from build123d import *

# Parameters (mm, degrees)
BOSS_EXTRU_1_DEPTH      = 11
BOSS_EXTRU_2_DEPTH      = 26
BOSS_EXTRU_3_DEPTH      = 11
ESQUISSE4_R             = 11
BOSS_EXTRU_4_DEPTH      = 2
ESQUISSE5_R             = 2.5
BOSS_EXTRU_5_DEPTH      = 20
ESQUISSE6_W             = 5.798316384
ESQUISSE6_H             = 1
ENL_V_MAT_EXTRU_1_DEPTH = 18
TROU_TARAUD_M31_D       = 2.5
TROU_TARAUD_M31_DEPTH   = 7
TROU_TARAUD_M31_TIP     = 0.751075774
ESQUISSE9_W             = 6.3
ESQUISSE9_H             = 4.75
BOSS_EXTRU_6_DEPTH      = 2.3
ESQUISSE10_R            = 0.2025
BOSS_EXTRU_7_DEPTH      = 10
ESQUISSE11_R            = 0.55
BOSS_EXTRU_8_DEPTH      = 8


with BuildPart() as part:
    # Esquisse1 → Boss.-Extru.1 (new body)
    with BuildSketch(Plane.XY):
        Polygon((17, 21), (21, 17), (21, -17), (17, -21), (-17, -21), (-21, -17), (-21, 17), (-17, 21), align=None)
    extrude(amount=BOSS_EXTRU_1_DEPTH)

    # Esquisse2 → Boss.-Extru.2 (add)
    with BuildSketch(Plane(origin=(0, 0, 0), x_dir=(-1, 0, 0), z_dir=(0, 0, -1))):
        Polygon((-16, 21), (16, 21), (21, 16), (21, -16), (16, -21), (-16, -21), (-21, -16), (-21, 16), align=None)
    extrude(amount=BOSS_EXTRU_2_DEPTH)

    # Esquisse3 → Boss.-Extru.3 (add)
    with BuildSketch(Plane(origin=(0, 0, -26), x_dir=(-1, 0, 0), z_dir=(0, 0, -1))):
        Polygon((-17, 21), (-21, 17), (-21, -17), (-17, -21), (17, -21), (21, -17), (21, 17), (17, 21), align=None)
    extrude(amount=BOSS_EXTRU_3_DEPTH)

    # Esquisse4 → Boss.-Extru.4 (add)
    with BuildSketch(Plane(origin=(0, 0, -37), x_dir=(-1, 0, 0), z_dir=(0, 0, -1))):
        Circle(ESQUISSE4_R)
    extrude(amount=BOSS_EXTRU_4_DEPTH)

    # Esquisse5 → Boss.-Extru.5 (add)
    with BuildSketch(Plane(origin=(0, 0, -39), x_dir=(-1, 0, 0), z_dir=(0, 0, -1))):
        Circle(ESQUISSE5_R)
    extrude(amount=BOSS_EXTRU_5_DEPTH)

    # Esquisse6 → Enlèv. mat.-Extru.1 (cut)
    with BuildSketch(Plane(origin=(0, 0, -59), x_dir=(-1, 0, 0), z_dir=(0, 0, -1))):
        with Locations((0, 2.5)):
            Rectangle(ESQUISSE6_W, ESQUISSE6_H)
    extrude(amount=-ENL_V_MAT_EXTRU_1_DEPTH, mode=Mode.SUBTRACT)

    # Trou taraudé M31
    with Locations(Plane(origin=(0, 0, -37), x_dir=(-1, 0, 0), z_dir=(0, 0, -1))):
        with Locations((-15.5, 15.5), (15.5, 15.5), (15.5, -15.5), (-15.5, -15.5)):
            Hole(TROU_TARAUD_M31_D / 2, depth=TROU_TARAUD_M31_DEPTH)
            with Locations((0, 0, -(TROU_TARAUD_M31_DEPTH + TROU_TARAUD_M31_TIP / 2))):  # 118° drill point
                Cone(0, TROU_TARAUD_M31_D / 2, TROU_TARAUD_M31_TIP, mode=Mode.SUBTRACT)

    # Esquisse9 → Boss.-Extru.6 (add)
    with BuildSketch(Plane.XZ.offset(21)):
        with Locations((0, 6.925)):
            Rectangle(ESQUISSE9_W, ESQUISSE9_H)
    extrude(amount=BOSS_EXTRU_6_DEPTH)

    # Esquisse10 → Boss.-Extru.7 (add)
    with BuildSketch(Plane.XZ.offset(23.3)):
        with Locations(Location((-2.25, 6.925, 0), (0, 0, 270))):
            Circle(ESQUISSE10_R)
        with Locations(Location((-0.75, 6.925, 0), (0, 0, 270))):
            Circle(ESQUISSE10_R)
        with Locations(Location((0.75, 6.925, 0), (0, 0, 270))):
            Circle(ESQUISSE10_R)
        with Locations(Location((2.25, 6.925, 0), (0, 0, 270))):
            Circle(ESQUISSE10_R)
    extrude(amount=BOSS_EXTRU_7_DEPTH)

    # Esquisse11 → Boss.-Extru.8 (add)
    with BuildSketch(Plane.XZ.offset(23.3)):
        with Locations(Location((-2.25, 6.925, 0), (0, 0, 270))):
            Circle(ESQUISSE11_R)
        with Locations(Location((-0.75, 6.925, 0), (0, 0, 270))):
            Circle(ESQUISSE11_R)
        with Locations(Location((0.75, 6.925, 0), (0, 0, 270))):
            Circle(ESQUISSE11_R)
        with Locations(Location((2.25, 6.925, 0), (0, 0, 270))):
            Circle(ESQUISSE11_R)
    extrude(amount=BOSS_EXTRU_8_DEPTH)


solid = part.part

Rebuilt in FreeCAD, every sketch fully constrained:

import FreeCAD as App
import Part
import Sketcher
from FreeCAD import Vector

doc = App.newDocument("Part")
body = doc.addObject("PartDesign::Body", "Body")

sketch1 = body.newObject("Sketcher::SketchObject", "Sketch")
sketch1.AttachmentSupport = (doc.getObject("XY_Plane"), [""])
sketch1.MapMode = "FlatFace"
sketch1.addGeometry(Part.LineSegment(Vector(21, 17, 0), Vector(17, 21, 0)), False)
sketch1.addGeometry(Part.LineSegment(Vector(17, 21, 0), Vector(-17, 21, 0)), False)
sketch1.addGeometry(Part.LineSegment(Vector(-17, 21, 0), Vector(-21, 17, 0)), False)
sketch1.addGeometry(Part.LineSegment(Vector(-21, 17, 0), Vector(-21, -17, 0)), False)
sketch1.addGeometry(Part.LineSegment(Vector(-21, -17, 0), Vector(-17, -21, 0)), False)
sketch1.addGeometry(Part.LineSegment(Vector(-17, -21, 0), Vector(17, -21, 0)), False)
sketch1.addGeometry(Part.LineSegment(Vector(17, -21, 0), Vector(21, -17, 0)), False)
sketch1.addGeometry(Part.LineSegment(Vector(21, -17, 0), Vector(21, 17, 0)), False)
sketch1.addConstraint(Sketcher.Constraint("Coincident", 0, 2, 1, 1))
sketch1.addConstraint(Sketcher.Constraint("Coincident", 1, 2, 2, 1))
sketch1.addConstraint(Sketcher.Constraint("Coincident", 2, 2, 3, 1))
sketch1.addConstraint(Sketcher.Constraint("Coincident", 3, 2, 4, 1))
sketch1.addConstraint(Sketcher.Constraint("Coincident", 4, 2, 5, 1))
sketch1.addConstraint(Sketcher.Constraint("Coincident", 5, 2, 6, 1))
sketch1.addConstraint(Sketcher.Constraint("Coincident", 6, 2, 7, 1))
sketch1.addConstraint(Sketcher.Constraint("Coincident", 7, 2, 0, 1))
sketch1.addConstraint(Sketcher.Constraint("Horizontal", 1))
sketch1.addConstraint(Sketcher.Constraint("Vertical", 3))
sketch1.addConstraint(Sketcher.Constraint("Horizontal", 5))
sketch1.addConstraint(Sketcher.Constraint("Vertical", 7))
sketch1.addConstraint(Sketcher.Constraint("Symmetric", 0, 2, 4, 2, -1, 1))
sketch1.addConstraint(Sketcher.Constraint("Symmetric", 2, 2, 6, 2, -1, 1))
sketch1.addConstraint(Sketcher.Constraint("Perpendicular", 0, 2))
sketch1.addConstraint(Sketcher.Constraint("Perpendicular", 2, 4))
sketch1.addConstraint(Sketcher.Constraint("Perpendicular", 4, 6))
sketch1.addConstraint(Sketcher.Constraint("Horizontal", 3, 2, 6, 2))
sketch1.addConstraint(Sketcher.Constraint("Vertical", 1, 2, 4, 2))
sketch1.addConstraint(Sketcher.Constraint("Equal", 5, 3))
sketch1.addConstraint(Sketcher.Constraint("DistanceX", 1, 2, 1, 1, 34.0))
sketch1.addConstraint(Sketcher.Constraint("DistanceY", -1, 1, 0, 2, 21.0))
pad1 = body.newObject("PartDesign::Pad", "Pad")
pad1.Profile = sketch1
pad1.Length = 11

sketch2 = body.newObject("Sketcher::SketchObject", "Sketch001")
sketch2.AttachmentSupport = (doc.getObject("XY_Plane"), [""])
sketch2.MapMode = "FlatFace"
sketch2.addGeometry(Part.LineSegment(Vector(-16, 21, 0), Vector(16, 21, 0)), False)
sketch2.addGeometry(Part.LineSegment(Vector(16, 21, 0), Vector(21, 16, 0)), False)
sketch2.addGeometry(Part.LineSegment(Vector(21, 16, 0), Vector(21, -16, 0)), False)
sketch2.addGeometry(Part.LineSegment(Vector(21, -16, 0), Vector(16, -21, 0)), False)
sketch2.addGeometry(Part.LineSegment(Vector(16, -21, 0), Vector(-16, -21, 0)), False)
sketch2.addGeometry(Part.LineSegment(Vector(-16, -21, 0), Vector(-21, -16, 0)), False)
sketch2.addGeometry(Part.LineSegment(Vector(-21, -16, 0), Vector(-21, 16, 0)), False)
sketch2.addGeometry(Part.LineSegment(Vector(-21, 16, 0), Vector(-16, 21, 0)), False)
sketch2.addConstraint(Sketcher.Constraint("Coincident", 0, 2, 1, 1))
sketch2.addConstraint(Sketcher.Constraint("Coincident", 1, 2, 2, 1))
sketch2.addConstraint(Sketcher.Constraint("Coincident", 2, 2, 3, 1))
sketch2.addConstraint(Sketcher.Constraint("Coincident", 3, 2, 4, 1))
sketch2.addConstraint(Sketcher.Constraint("Coincident", 4, 2, 5, 1))
sketch2.addConstraint(Sketcher.Constraint("Coincident", 5, 2, 6, 1))
sketch2.addConstraint(Sketcher.Constraint("Coincident", 6, 2, 7, 1))
sketch2.addConstraint(Sketcher.Constraint("Coincident", 7, 2, 0, 1))
sketch2.addConstraint(Sketcher.Constraint("Horizontal", 0))
sketch2.addConstraint(Sketcher.Constraint("Vertical", 2))
sketch2.addConstraint(Sketcher.Constraint("Horizontal", 4))
sketch2.addConstraint(Sketcher.Constraint("Vertical", 6))
sketch2.addConstraint(Sketcher.Constraint("Symmetric", 0, 2, 4, 2, -1, 1))
sketch2.addConstraint(Sketcher.Constraint("Symmetric", 1, 2, 5, 2, -1, 1))
sketch2.addConstraint(Sketcher.Constraint("Perpendicular", 1, 3))
sketch2.addConstraint(Sketcher.Constraint("Perpendicular", 5, 7))
sketch2.addConstraint(Sketcher.Constraint("Horizontal", 2, 2, 5, 2))
sketch2.addConstraint(Sketcher.Constraint("Horizontal", 1, 2, 6, 2))
sketch2.addConstraint(Sketcher.Constraint("Vertical", 0, 2, 3, 2))
sketch2.addConstraint(Sketcher.Constraint("Equal", 4, 2))
sketch2.addConstraint(Sketcher.Constraint("DistanceX", 0, 1, 0, 2, 32.0))
sketch2.addConstraint(Sketcher.Constraint("DistanceY", -1, 1, 0, 2, 21.0))
pad2 = body.newObject("PartDesign::Pad", "Pad001")
pad2.Profile = sketch2
pad2.Length = 26
pad2.Reversed = True

sketch3 = body.newObject("Sketcher::SketchObject", "Sketch002")
sketch3.AttachmentSupport = (doc.getObject("XY_Plane"), [""])
sketch3.MapMode = "FlatFace"
sketch3.AttachmentOffset = App.Placement(Vector(0, 0, -26), App.Rotation())
sketch3.addGeometry(Part.LineSegment(Vector(17, 21, 0), Vector(21, 17, 0)), False)
sketch3.addGeometry(Part.LineSegment(Vector(21, 17, 0), Vector(21, -17, 0)), False)
sketch3.addGeometry(Part.LineSegment(Vector(21, -17, 0), Vector(17, -21, 0)), False)
sketch3.addGeometry(Part.LineSegment(Vector(17, -21, 0), Vector(-17, -21, 0)), False)
sketch3.addGeometry(Part.LineSegment(Vector(-17, -21, 0), Vector(-21, -17, 0)), False)
sketch3.addGeometry(Part.LineSegment(Vector(-21, -17, 0), Vector(-21, 17, 0)), False)
sketch3.addGeometry(Part.LineSegment(Vector(-21, 17, 0), Vector(-17, 21, 0)), False)
sketch3.addGeometry(Part.LineSegment(Vector(-17, 21, 0), Vector(17, 21, 0)), False)
sketch3.addConstraint(Sketcher.Constraint("Coincident", 0, 2, 1, 1))
sketch3.addConstraint(Sketcher.Constraint("Coincident", 1, 2, 2, 1))
sketch3.addConstraint(Sketcher.Constraint("Coincident", 2, 2, 3, 1))
sketch3.addConstraint(Sketcher.Constraint("Coincident", 3, 2, 4, 1))
sketch3.addConstraint(Sketcher.Constraint("Coincident", 4, 2, 5, 1))
sketch3.addConstraint(Sketcher.Constraint("Coincident", 5, 2, 6, 1))
sketch3.addConstraint(Sketcher.Constraint("Coincident", 6, 2, 7, 1))
sketch3.addConstraint(Sketcher.Constraint("Coincident", 7, 2, 0, 1))
sketch3.addConstraint(Sketcher.Constraint("Vertical", 1))
sketch3.addConstraint(Sketcher.Constraint("Horizontal", 3))
sketch3.addConstraint(Sketcher.Constraint("Vertical", 5))
sketch3.addConstraint(Sketcher.Constraint("Horizontal", 7))
sketch3.addConstraint(Sketcher.Constraint("Symmetric", 0, 2, 4, 2, -1, 1))
sketch3.addConstraint(Sketcher.Constraint("Symmetric", 2, 2, 6, 2, -1, 1))
sketch3.addConstraint(Sketcher.Constraint("Perpendicular", 0, 2))
sketch3.addConstraint(Sketcher.Constraint("Perpendicular", 2, 4))
sketch3.addConstraint(Sketcher.Constraint("Perpendicular", 4, 6))
sketch3.addConstraint(Sketcher.Constraint("Horizontal", 1, 2, 4, 2))
sketch3.addConstraint(Sketcher.Constraint("Vertical", 3, 2, 6, 2))
sketch3.addConstraint(Sketcher.Constraint("Equal", 7, 1))
sketch3.addConstraint(Sketcher.Constraint("DistanceX", 3, 2, 3, 1, 34.0))
sketch3.addConstraint(Sketcher.Constraint("DistanceX", -1, 1, 0, 2, 21.0))
pad3 = body.newObject("PartDesign::Pad", "Pad002")
pad3.Profile = sketch3
pad3.Length = 11
pad3.Reversed = True

sketch4 = body.newObject("Sketcher::SketchObject", "Sketch003")
sketch4.AttachmentSupport = (doc.getObject("XY_Plane"), [""])
sketch4.MapMode = "FlatFace"
sketch4.AttachmentOffset = App.Placement(Vector(0, 0, -37), App.Rotation())
sketch4.addGeometry(Part.Circle(Vector(0, 0, 0), Vector(0, 0, 1), 11), False)
sketch4.addConstraint(Sketcher.Constraint("Coincident", 0, 3, -1, 1))
sketch4.addConstraint(Sketcher.Constraint("Diameter", 0, 22.0))
pad4 = body.newObject("PartDesign::Pad", "Pad003")
pad4.Profile = sketch4
pad4.Length = 2
pad4.Reversed = True

sketch5 = body.newObject("Sketcher::SketchObject", "Sketch004")
sketch5.AttachmentSupport = (doc.getObject("XY_Plane"), [""])
sketch5.MapMode = "FlatFace"
sketch5.AttachmentOffset = App.Placement(Vector(0, 0, -39), App.Rotation())
sketch5.addGeometry(Part.Circle(Vector(0, 0, 0), Vector(0, 0, 1), 2.5), False)
sketch5.addConstraint(Sketcher.Constraint("Coincident", 0, 3, -1, 1))
sketch5.addConstraint(Sketcher.Constraint("Diameter", 0, 5.0))
pad5 = body.newObject("PartDesign::Pad", "Pad004")
pad5.Profile = sketch5
pad5.Length = 20
pad5.Reversed = True

sketch6 = body.newObject("Sketcher::SketchObject", "Sketch005")
sketch6.AttachmentSupport = (doc.getObject("XY_Plane"), [""])
sketch6.MapMode = "FlatFace"
sketch6.AttachmentOffset = App.Placement(Vector(0, 0, -59), App.Rotation())
sketch6.addGeometry(Part.LineSegment(Vector(2.9, 3, 0), Vector(2.9, 2, 0)), False)
sketch6.addGeometry(Part.LineSegment(Vector(2.9, 2, 0), Vector(-2.9, 2, 0)), False)
sketch6.addGeometry(Part.LineSegment(Vector(-2.9, 2, 0), Vector(-2.9, 3, 0)), False)
sketch6.addGeometry(Part.LineSegment(Vector(-2.9, 3, 0), Vector(2.9, 3, 0)), False)
sketch6.addConstraint(Sketcher.Constraint("Coincident", 0, 2, 1, 1))
sketch6.addConstraint(Sketcher.Constraint("Coincident", 1, 2, 2, 1))
sketch6.addConstraint(Sketcher.Constraint("Coincident", 2, 2, 3, 1))
sketch6.addConstraint(Sketcher.Constraint("Coincident", 3, 2, 0, 1))
sketch6.addConstraint(Sketcher.Constraint("Vertical", 0))
sketch6.addConstraint(Sketcher.Constraint("Horizontal", 1))
sketch6.addConstraint(Sketcher.Constraint("Vertical", 2))
sketch6.addConstraint(Sketcher.Constraint("Horizontal", 3))
sketch6.addConstraint(Sketcher.Constraint("DistanceY", 0, 2, 0, 1, 1.0))
sketch6.addConstraint(Sketcher.Constraint("DistanceY", -1, 1, 0, 2, 2.0))
sketch6.addConstraint(Sketcher.Constraint("DistanceX", 1, 2, 1, 1, 5.798316))
sketch6.addConstraint(Sketcher.Constraint("DistanceX", -1, 1, 0, 2, 2.899158))
pocket1 = body.newObject("PartDesign::Pocket", "Pocket")
pocket1.Profile = sketch6
pocket1.Length = 18
pocket1.Reversed = True

sketch7 = body.newObject("Sketcher::SketchObject", "Sketch006")
sketch7.AttachmentSupport = (doc.getObject("XY_Plane"), [""])
sketch7.MapMode = "FlatFace"
sketch7.AttachmentOffset = App.Placement(Vector(0, 0, -37), App.Rotation())
sketch7.addGeometry(Part.Circle(Vector(15.5, 15.5, 0), Vector(0, 0, 1), 1.2), False)
sketch7.addGeometry(Part.Circle(Vector(-15.5, 15.5, 0), Vector(0, 0, 1), 1.2), False)
sketch7.addGeometry(Part.Circle(Vector(-15.5, -15.5, 0), Vector(0, 0, 1), 1.2), False)
sketch7.addGeometry(Part.Circle(Vector(15.5, -15.5, 0), Vector(0, 0, 1), 1.2), False)
sketch7.addConstraint(Sketcher.Constraint("Equal", 0, 1))
sketch7.addConstraint(Sketcher.Constraint("Equal", 1, 2))
sketch7.addConstraint(Sketcher.Constraint("Equal", 2, 3))
sketch7.addConstraint(Sketcher.Constraint("Symmetric", 0, 3, 2, 3, -1, 1))
sketch7.addConstraint(Sketcher.Constraint("Symmetric", 1, 3, 3, 3, -1, 1))
sketch7.addConstraint(Sketcher.Constraint("Symmetric", 0, 3, 1, 3, -2))
sketch7.addConstraint(Sketcher.Constraint("Diameter", 0, 2.5))
sketch7.addConstraint(Sketcher.Constraint("DistanceX", 1, 3, 0, 3, 31.0))
sketch7.addConstraint(Sketcher.Constraint("DistanceY", 2, 3, 1, 3, 31.0))
doc.recompute()
hole = body.newObject("PartDesign::Hole", "Hole")
hole.Profile = sketch7
hole.ThreadType = "None"
hole.Diameter = 2.5
hole.DepthType = "Dimension"
hole.Depth = 7
hole.DrillPoint = "Angled"
hole.DrillPointAngle = 118
hole.Reversed = True

sketch8 = body.newObject("Sketcher::SketchObject", "Sketch007")
sketch8.AttachmentSupport = (doc.getObject("XZ_Plane"), [""])
sketch8.MapMode = "FlatFace"
sketch8.AttachmentOffset = App.Placement(Vector(0, 0, 21), App.Rotation())
sketch8.addGeometry(Part.LineSegment(Vector(-3.1, 9.3, 0), Vector(-3.1, 4.5, 0)), False)
sketch8.addGeometry(Part.LineSegment(Vector(-3.1, 4.5, 0), Vector(3.1, 4.5, 0)), False)
sketch8.addGeometry(Part.LineSegment(Vector(3.1, 4.5, 0), Vector(3.1, 9.3, 0)), False)
sketch8.addGeometry(Part.LineSegment(Vector(3.1, 9.3, 0), Vector(-3.1, 9.3, 0)), False)
sketch8.addConstraint(Sketcher.Constraint("Coincident", 0, 2, 1, 1))
sketch8.addConstraint(Sketcher.Constraint("Coincident", 1, 2, 2, 1))
sketch8.addConstraint(Sketcher.Constraint("Coincident", 2, 2, 3, 1))
sketch8.addConstraint(Sketcher.Constraint("Coincident", 3, 2, 0, 1))
sketch8.addConstraint(Sketcher.Constraint("Vertical", 0))
sketch8.addConstraint(Sketcher.Constraint("Horizontal", 1))
sketch8.addConstraint(Sketcher.Constraint("Vertical", 2))
sketch8.addConstraint(Sketcher.Constraint("Horizontal", 3))
sketch8.addConstraint(Sketcher.Constraint("DistanceX", 1, 1, 1, 2, 6.3))
sketch8.addConstraint(Sketcher.Constraint("DistanceY", 0, 2, 0, 1, 4.75))
sketch8.addConstraint(Sketcher.Constraint("DistanceY", -1, 1, 2, 2, 9.3))
sketch8.addConstraint(Sketcher.Constraint("DistanceX", 0, 2, -1, 1, 3.15))
pad6 = body.newObject("PartDesign::Pad", "Pad005")
pad6.Profile = sketch8
pad6.Length = 2.3

sketch9 = body.newObject("Sketcher::SketchObject", "Sketch008")
sketch9.AttachmentSupport = (doc.getObject("XZ_Plane"), [""])
sketch9.MapMode = "FlatFace"
sketch9.AttachmentOffset = App.Placement(Vector(0, 0, 23.3), App.Rotation())
sketch9.addGeometry(Part.Circle(Vector(-2.25, 6.92, 0), Vector(0, 0, 1), 0.2), False)
sketch9.addGeometry(Part.Circle(Vector(-0.75, 6.92, 0), Vector(0, 0, 1), 0.2), False)
sketch9.addGeometry(Part.Circle(Vector(0.75, 6.92, 0), Vector(0, 0, 1), 0.2), False)
sketch9.addGeometry(Part.Circle(Vector(2.25, 6.92, 0), Vector(0, 0, 1), 0.2), False)
sketch9.addConstraint(Sketcher.Constraint("Equal", 0, 1))
sketch9.addConstraint(Sketcher.Constraint("Equal", 1, 2))
sketch9.addConstraint(Sketcher.Constraint("Equal", 2, 3))
sketch9.addConstraint(Sketcher.Constraint("Symmetric", 1, 3, 2, 3, -2))
sketch9.addConstraint(Sketcher.Constraint("Symmetric", 0, 3, 3, 3, -2))
sketch9.addConstraint(Sketcher.Constraint("Horizontal", 0, 3, 1, 3))
sketch9.addConstraint(Sketcher.Constraint("Diameter", 0, 0.405))
sketch9.addConstraint(Sketcher.Constraint("DistanceX", 0, 3, 2, 3, 3.0))
sketch9.addConstraint(Sketcher.Constraint("DistanceX", 0, 3, 1, 3, 1.5))
sketch9.addConstraint(Sketcher.Constraint("DistanceY", -1, 1, 0, 3, 6.925))
pad7 = body.newObject("PartDesign::Pad", "Pad006")
pad7.Profile = sketch9
pad7.Length = 10

sketch10 = body.newObject("Sketcher::SketchObject", "Sketch009")
sketch10.AttachmentSupport = (doc.getObject("XZ_Plane"), [""])
sketch10.MapMode = "FlatFace"
sketch10.AttachmentOffset = App.Placement(Vector(0, 0, 23.3), App.Rotation())
sketch10.addGeometry(Part.Circle(Vector(-2.2, 6.9, 0), Vector(0, 0, 1), 0.6), False)
sketch10.addGeometry(Part.Circle(Vector(-0.8, 6.9, 0), Vector(0, 0, 1), 0.6), False)
sketch10.addGeometry(Part.Circle(Vector(0.8, 6.9, 0), Vector(0, 0, 1), 0.6), False)
sketch10.addGeometry(Part.Circle(Vector(2.2, 6.9, 0), Vector(0, 0, 1), 0.6), False)
sketch10.addConstraint(Sketcher.Constraint("Equal", 0, 1))
sketch10.addConstraint(Sketcher.Constraint("Equal", 1, 2))
sketch10.addConstraint(Sketcher.Constraint("Equal", 2, 3))
sketch10.addConstraint(Sketcher.Constraint("Symmetric", 1, 3, 2, 3, -2))
sketch10.addConstraint(Sketcher.Constraint("Symmetric", 0, 3, 3, 3, -2))
sketch10.addConstraint(Sketcher.Constraint("Horizontal", 0, 3, 1, 3))
sketch10.addConstraint(Sketcher.Constraint("Diameter", 0, 1.1))
sketch10.addConstraint(Sketcher.Constraint("DistanceX", 0, 3, 2, 3, 3.0))
sketch10.addConstraint(Sketcher.Constraint("DistanceX", 0, 3, 1, 3, 1.5))
sketch10.addConstraint(Sketcher.Constraint("DistanceY", -1, 1, 0, 3, 6.925))
pad8 = body.newObject("PartDesign::Pad", "Pad007")
pad8.Profile = sketch10
pad8.Length = 8

doc.recompute()
